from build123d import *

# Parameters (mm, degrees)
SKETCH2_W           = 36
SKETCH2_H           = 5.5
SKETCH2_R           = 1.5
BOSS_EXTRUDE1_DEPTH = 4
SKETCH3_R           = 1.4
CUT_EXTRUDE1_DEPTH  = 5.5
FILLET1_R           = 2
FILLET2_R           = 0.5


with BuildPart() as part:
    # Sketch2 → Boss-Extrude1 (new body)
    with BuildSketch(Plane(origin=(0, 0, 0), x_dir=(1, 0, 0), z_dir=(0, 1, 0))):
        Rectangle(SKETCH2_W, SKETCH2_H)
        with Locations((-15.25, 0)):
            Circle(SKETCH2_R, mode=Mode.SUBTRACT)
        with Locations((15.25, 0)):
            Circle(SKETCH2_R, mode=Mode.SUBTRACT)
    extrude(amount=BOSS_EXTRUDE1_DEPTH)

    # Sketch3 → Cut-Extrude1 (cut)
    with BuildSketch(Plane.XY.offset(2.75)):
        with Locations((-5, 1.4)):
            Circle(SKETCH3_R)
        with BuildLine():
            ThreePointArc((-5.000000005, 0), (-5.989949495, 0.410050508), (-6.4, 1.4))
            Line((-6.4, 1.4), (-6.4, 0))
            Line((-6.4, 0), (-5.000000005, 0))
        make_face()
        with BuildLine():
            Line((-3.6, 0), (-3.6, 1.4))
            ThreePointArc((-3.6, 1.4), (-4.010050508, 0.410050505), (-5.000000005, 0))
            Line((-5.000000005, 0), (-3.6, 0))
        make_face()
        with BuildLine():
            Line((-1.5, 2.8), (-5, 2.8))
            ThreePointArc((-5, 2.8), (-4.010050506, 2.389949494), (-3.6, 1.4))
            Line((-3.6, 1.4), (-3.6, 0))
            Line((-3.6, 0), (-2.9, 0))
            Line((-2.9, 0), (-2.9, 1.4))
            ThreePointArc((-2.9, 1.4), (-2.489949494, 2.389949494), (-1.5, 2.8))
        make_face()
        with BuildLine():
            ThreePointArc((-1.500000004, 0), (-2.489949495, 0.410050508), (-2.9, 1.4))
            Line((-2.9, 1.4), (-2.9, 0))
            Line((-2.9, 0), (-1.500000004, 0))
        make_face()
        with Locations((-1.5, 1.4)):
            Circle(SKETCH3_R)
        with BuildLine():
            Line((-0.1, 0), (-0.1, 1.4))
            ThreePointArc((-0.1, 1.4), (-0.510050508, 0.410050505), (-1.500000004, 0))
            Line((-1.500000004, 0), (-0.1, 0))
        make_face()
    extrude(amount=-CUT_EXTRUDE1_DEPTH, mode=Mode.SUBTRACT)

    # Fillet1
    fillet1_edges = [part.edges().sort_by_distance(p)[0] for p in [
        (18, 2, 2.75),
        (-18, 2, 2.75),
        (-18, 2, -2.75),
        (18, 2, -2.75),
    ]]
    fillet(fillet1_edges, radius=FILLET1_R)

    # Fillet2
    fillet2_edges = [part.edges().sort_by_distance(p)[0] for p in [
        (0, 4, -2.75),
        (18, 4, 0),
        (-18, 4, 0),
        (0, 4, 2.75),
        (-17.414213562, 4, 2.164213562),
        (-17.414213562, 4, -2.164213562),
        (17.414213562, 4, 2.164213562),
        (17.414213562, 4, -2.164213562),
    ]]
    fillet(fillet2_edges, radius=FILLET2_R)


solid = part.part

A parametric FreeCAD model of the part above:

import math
import FreeCAD as App
import Part
import Sketcher


def edges_at(feature, points):
    """Names of the edges that pass closest to the given points."""
    edges = feature.Shape.Edges
    near = lambda p: min(range(len(edges)), key=lambda i: edges[i].distToShape(Part.Vertex(*p))[0])
    return sorted({f"Edge{near(p) + 1}" for p in points})

doc = App.newDocument("Part")
params = doc.addObject("Spreadsheet::Sheet", "Params")
for row, (alias, value) in enumerate([
    ("sketch1_diameter", "3 mm"),
    ("sketch1_width", "36 mm"),
    ("sketch1_height", "5.5 mm"),
    ("pad1_length", "4 mm"),
    ("sketch2_radius", "1.4 mm"),
    ("sketch2_width", "6.3 mm"),
    ("sketch2_height", "1.4 mm"),
    ("pocket1_length", "5.5 mm"),
    ("fillet_radius", "2 mm"),
    ("fillet2_radius", "0.5 mm"),
], start=1):
    params.set(f"A{row}", alias)
    params.set(f"B{row}", "=" + value)
    params.setAlias(f"B{row}", alias)

body = doc.addObject("PartDesign::Body", "Body")

sketch1 = body.newObject("Sketcher::SketchObject", "Sketch")
sketch1.AttachmentSupport = (doc.getObject("XZ_Plane"), [""])
sketch1.MapMode = "FlatFace"
sketch1.addGeometry([
    Part.LineSegment(App.Vector(-18, -2.8, 0), App.Vector(-18, 2.8, 0)),
    Part.LineSegment(App.Vector(-18, 2.8, 0), App.Vector(18, 2.8, 0)),
    Part.LineSegment(App.Vector(18, 2.8, 0), App.Vector(18, -2.8, 0)),
    Part.LineSegment(App.Vector(18, -2.8, 0), App.Vector(-18, -2.8, 0)),
    Part.Circle(App.Vector(-15.2, 0, 0), App.Vector(0, 0, 1), 1.5),
    Part.Circle(App.Vector(15.2, 0, 0), App.Vector(0, 0, 1), 1.5),
], False)
sketch1.addConstraint([
    Sketcher.Constraint("Coincident", 0, 2, 1, 1),
    Sketcher.Constraint("Coincident", 1, 2, 2, 1),
    Sketcher.Constraint("Coincident", 2, 2, 3, 1),
    Sketcher.Constraint("Coincident", 3, 2, 0, 1),
    Sketcher.Constraint("Vertical", 0),
    Sketcher.Constraint("Horizontal", 1),
    Sketcher.Constraint("Vertical", 2),
    Sketcher.Constraint("Horizontal", 3),
    Sketcher.Constraint("Equal", 4, 5),
    Sketcher.Constraint("Symmetric", 4, 3, 5, 3, -1, 1),
    Sketcher.Constraint("Symmetric", 0, 2, 2, 2, -1, 1),
    Sketcher.Constraint("PointOnObject", 4, 3, -1),
    Sketcher.Constraint("Diameter", 4, 3.0),
    Sketcher.Constraint("DistanceX", 1, 1, 1, 2, 36.0),
    Sketcher.Constraint("DistanceY", 0, 1, 0, 2, 5.5),
    Sketcher.Constraint("DistanceX", 4, 3, 5, 3, 30.5),
])
sketch1.setExpression("Constraints[12]", "Params.sketch1_diameter")
sketch1.setExpression("Constraints[13]", "Params.sketch1_width")
sketch1.setExpression("Constraints[14]", "Params.sketch1_height")
pad1 = body.newObject("PartDesign::Pad", "Pad")
pad1.Profile = sketch1
pad1.setExpression("Length", "Params.pad1_length")
pad1.Reversed = True

sketch2 = body.newObject("Sketcher::SketchObject", "Sketch001")
sketch2.AttachmentSupport = (doc.getObject("XY_Plane"), [""])
sketch2.MapMode = "FlatFace"
sketch2.AttachmentOffset = App.Placement(App.Vector(0, 0, 2.75), App.Rotation())
sketch2.addGeometry([
    Part.LineSegment(App.Vector(-6.4, 1.4, 0), App.Vector(-6.4, 0, 0)),
    Part.LineSegment(App.Vector(-6.4, 0, 0), App.Vector(-0.1, 0, 0)),
    Part.LineSegment(App.Vector(-0.1, 0, 0), App.Vector(-0.1, 1.4, 0)),
    Part.ArcOfCircle(Part.Circle(App.Vector(-1.5, 1.4, 0), App.Vector(0, 0, 1), 1.4), math.radians(0), math.radians(90)),
    Part.LineSegment(App.Vector(-1.5, 2.8, 0), App.Vector(-5, 2.8, 0)),
    Part.ArcOfCircle(Part.Circle(App.Vector(-5, 1.4, 0), App.Vector(0, 0, 1), 1.4), math.radians(90), math.radians(180)),
], False)
sketch2.addConstraint([
    Sketcher.Constraint("Coincident", 0, 2, 1, 1),
    Sketcher.Constraint("Coincident", 1, 2, 2, 1),
    Sketcher.Constraint("Tangent", 2, 2, 3, 1),
    Sketcher.Constraint("Tangent", 3, 2, 4, 1),
    Sketcher.Constraint("Tangent", 4, 2, 5, 1),
    Sketcher.Constraint("Tangent", 5, 2, 0, 1),
    Sketcher.Constraint("Vertical", 0),
    Sketcher.Constraint("Horizontal", 1),
    Sketcher.Constraint("Vertical", 2),
    Sketcher.Constraint("Horizontal", 4),
    Sketcher.Constraint("Equal", 3, 5),
    Sketcher.Constraint("PointOnObject", 0, 2, -1),
    Sketcher.Constraint("Radius", 3, 1.4),
    Sketcher.Constraint("DistanceX", 1, 1, 1, 2, 6.3),
    Sketcher.Constraint("DistanceY", 0, 2, 0, 1, 1.4),
    Sketcher.Constraint("DistanceX", 5, 3, -1, 1, 5.0),
])
sketch2.setExpression("Constraints[12]", "Params.sketch2_radius")
sketch2.setExpression("Constraints[13]", "Params.sketch2_width")
sketch2.setExpression("Constraints[14]", "Params.sketch2_height")
pocket1 = body.newObject("PartDesign::Pocket", "Pocket")
pocket1.Profile = sketch2
pocket1.setExpression("Length", "Params.pocket1_length")
doc.recompute()

fillet = body.newObject("PartDesign::Fillet", "Fillet")
fillet.Base = (pocket1, edges_at(pocket1, [
    (18, 2, 2.75),
    (-18, 2, 2.75),
    (-18, 2, -2.75),
    (18, 2, -2.75),
]))
fillet.setExpression("Radius", "Params.fillet_radius")
doc.recompute()

fillet2 = body.newObject("PartDesign::Fillet", "Fillet001")
fillet2.Base = (fillet, edges_at(fillet, [
    (0, 4, -2.75),
    (18, 4, 0),
    (-18, 4, 0),
    (0, 4, 2.75),
    (-17.414, 4, 2.164),
    (-17.414, 4, -2.164),
    (17.414, 4, 2.164),
    (17.414, 4, -2.164),
]))
fillet2.setExpression("Radius", "Params.fillet2_radius")

doc.recompute()
